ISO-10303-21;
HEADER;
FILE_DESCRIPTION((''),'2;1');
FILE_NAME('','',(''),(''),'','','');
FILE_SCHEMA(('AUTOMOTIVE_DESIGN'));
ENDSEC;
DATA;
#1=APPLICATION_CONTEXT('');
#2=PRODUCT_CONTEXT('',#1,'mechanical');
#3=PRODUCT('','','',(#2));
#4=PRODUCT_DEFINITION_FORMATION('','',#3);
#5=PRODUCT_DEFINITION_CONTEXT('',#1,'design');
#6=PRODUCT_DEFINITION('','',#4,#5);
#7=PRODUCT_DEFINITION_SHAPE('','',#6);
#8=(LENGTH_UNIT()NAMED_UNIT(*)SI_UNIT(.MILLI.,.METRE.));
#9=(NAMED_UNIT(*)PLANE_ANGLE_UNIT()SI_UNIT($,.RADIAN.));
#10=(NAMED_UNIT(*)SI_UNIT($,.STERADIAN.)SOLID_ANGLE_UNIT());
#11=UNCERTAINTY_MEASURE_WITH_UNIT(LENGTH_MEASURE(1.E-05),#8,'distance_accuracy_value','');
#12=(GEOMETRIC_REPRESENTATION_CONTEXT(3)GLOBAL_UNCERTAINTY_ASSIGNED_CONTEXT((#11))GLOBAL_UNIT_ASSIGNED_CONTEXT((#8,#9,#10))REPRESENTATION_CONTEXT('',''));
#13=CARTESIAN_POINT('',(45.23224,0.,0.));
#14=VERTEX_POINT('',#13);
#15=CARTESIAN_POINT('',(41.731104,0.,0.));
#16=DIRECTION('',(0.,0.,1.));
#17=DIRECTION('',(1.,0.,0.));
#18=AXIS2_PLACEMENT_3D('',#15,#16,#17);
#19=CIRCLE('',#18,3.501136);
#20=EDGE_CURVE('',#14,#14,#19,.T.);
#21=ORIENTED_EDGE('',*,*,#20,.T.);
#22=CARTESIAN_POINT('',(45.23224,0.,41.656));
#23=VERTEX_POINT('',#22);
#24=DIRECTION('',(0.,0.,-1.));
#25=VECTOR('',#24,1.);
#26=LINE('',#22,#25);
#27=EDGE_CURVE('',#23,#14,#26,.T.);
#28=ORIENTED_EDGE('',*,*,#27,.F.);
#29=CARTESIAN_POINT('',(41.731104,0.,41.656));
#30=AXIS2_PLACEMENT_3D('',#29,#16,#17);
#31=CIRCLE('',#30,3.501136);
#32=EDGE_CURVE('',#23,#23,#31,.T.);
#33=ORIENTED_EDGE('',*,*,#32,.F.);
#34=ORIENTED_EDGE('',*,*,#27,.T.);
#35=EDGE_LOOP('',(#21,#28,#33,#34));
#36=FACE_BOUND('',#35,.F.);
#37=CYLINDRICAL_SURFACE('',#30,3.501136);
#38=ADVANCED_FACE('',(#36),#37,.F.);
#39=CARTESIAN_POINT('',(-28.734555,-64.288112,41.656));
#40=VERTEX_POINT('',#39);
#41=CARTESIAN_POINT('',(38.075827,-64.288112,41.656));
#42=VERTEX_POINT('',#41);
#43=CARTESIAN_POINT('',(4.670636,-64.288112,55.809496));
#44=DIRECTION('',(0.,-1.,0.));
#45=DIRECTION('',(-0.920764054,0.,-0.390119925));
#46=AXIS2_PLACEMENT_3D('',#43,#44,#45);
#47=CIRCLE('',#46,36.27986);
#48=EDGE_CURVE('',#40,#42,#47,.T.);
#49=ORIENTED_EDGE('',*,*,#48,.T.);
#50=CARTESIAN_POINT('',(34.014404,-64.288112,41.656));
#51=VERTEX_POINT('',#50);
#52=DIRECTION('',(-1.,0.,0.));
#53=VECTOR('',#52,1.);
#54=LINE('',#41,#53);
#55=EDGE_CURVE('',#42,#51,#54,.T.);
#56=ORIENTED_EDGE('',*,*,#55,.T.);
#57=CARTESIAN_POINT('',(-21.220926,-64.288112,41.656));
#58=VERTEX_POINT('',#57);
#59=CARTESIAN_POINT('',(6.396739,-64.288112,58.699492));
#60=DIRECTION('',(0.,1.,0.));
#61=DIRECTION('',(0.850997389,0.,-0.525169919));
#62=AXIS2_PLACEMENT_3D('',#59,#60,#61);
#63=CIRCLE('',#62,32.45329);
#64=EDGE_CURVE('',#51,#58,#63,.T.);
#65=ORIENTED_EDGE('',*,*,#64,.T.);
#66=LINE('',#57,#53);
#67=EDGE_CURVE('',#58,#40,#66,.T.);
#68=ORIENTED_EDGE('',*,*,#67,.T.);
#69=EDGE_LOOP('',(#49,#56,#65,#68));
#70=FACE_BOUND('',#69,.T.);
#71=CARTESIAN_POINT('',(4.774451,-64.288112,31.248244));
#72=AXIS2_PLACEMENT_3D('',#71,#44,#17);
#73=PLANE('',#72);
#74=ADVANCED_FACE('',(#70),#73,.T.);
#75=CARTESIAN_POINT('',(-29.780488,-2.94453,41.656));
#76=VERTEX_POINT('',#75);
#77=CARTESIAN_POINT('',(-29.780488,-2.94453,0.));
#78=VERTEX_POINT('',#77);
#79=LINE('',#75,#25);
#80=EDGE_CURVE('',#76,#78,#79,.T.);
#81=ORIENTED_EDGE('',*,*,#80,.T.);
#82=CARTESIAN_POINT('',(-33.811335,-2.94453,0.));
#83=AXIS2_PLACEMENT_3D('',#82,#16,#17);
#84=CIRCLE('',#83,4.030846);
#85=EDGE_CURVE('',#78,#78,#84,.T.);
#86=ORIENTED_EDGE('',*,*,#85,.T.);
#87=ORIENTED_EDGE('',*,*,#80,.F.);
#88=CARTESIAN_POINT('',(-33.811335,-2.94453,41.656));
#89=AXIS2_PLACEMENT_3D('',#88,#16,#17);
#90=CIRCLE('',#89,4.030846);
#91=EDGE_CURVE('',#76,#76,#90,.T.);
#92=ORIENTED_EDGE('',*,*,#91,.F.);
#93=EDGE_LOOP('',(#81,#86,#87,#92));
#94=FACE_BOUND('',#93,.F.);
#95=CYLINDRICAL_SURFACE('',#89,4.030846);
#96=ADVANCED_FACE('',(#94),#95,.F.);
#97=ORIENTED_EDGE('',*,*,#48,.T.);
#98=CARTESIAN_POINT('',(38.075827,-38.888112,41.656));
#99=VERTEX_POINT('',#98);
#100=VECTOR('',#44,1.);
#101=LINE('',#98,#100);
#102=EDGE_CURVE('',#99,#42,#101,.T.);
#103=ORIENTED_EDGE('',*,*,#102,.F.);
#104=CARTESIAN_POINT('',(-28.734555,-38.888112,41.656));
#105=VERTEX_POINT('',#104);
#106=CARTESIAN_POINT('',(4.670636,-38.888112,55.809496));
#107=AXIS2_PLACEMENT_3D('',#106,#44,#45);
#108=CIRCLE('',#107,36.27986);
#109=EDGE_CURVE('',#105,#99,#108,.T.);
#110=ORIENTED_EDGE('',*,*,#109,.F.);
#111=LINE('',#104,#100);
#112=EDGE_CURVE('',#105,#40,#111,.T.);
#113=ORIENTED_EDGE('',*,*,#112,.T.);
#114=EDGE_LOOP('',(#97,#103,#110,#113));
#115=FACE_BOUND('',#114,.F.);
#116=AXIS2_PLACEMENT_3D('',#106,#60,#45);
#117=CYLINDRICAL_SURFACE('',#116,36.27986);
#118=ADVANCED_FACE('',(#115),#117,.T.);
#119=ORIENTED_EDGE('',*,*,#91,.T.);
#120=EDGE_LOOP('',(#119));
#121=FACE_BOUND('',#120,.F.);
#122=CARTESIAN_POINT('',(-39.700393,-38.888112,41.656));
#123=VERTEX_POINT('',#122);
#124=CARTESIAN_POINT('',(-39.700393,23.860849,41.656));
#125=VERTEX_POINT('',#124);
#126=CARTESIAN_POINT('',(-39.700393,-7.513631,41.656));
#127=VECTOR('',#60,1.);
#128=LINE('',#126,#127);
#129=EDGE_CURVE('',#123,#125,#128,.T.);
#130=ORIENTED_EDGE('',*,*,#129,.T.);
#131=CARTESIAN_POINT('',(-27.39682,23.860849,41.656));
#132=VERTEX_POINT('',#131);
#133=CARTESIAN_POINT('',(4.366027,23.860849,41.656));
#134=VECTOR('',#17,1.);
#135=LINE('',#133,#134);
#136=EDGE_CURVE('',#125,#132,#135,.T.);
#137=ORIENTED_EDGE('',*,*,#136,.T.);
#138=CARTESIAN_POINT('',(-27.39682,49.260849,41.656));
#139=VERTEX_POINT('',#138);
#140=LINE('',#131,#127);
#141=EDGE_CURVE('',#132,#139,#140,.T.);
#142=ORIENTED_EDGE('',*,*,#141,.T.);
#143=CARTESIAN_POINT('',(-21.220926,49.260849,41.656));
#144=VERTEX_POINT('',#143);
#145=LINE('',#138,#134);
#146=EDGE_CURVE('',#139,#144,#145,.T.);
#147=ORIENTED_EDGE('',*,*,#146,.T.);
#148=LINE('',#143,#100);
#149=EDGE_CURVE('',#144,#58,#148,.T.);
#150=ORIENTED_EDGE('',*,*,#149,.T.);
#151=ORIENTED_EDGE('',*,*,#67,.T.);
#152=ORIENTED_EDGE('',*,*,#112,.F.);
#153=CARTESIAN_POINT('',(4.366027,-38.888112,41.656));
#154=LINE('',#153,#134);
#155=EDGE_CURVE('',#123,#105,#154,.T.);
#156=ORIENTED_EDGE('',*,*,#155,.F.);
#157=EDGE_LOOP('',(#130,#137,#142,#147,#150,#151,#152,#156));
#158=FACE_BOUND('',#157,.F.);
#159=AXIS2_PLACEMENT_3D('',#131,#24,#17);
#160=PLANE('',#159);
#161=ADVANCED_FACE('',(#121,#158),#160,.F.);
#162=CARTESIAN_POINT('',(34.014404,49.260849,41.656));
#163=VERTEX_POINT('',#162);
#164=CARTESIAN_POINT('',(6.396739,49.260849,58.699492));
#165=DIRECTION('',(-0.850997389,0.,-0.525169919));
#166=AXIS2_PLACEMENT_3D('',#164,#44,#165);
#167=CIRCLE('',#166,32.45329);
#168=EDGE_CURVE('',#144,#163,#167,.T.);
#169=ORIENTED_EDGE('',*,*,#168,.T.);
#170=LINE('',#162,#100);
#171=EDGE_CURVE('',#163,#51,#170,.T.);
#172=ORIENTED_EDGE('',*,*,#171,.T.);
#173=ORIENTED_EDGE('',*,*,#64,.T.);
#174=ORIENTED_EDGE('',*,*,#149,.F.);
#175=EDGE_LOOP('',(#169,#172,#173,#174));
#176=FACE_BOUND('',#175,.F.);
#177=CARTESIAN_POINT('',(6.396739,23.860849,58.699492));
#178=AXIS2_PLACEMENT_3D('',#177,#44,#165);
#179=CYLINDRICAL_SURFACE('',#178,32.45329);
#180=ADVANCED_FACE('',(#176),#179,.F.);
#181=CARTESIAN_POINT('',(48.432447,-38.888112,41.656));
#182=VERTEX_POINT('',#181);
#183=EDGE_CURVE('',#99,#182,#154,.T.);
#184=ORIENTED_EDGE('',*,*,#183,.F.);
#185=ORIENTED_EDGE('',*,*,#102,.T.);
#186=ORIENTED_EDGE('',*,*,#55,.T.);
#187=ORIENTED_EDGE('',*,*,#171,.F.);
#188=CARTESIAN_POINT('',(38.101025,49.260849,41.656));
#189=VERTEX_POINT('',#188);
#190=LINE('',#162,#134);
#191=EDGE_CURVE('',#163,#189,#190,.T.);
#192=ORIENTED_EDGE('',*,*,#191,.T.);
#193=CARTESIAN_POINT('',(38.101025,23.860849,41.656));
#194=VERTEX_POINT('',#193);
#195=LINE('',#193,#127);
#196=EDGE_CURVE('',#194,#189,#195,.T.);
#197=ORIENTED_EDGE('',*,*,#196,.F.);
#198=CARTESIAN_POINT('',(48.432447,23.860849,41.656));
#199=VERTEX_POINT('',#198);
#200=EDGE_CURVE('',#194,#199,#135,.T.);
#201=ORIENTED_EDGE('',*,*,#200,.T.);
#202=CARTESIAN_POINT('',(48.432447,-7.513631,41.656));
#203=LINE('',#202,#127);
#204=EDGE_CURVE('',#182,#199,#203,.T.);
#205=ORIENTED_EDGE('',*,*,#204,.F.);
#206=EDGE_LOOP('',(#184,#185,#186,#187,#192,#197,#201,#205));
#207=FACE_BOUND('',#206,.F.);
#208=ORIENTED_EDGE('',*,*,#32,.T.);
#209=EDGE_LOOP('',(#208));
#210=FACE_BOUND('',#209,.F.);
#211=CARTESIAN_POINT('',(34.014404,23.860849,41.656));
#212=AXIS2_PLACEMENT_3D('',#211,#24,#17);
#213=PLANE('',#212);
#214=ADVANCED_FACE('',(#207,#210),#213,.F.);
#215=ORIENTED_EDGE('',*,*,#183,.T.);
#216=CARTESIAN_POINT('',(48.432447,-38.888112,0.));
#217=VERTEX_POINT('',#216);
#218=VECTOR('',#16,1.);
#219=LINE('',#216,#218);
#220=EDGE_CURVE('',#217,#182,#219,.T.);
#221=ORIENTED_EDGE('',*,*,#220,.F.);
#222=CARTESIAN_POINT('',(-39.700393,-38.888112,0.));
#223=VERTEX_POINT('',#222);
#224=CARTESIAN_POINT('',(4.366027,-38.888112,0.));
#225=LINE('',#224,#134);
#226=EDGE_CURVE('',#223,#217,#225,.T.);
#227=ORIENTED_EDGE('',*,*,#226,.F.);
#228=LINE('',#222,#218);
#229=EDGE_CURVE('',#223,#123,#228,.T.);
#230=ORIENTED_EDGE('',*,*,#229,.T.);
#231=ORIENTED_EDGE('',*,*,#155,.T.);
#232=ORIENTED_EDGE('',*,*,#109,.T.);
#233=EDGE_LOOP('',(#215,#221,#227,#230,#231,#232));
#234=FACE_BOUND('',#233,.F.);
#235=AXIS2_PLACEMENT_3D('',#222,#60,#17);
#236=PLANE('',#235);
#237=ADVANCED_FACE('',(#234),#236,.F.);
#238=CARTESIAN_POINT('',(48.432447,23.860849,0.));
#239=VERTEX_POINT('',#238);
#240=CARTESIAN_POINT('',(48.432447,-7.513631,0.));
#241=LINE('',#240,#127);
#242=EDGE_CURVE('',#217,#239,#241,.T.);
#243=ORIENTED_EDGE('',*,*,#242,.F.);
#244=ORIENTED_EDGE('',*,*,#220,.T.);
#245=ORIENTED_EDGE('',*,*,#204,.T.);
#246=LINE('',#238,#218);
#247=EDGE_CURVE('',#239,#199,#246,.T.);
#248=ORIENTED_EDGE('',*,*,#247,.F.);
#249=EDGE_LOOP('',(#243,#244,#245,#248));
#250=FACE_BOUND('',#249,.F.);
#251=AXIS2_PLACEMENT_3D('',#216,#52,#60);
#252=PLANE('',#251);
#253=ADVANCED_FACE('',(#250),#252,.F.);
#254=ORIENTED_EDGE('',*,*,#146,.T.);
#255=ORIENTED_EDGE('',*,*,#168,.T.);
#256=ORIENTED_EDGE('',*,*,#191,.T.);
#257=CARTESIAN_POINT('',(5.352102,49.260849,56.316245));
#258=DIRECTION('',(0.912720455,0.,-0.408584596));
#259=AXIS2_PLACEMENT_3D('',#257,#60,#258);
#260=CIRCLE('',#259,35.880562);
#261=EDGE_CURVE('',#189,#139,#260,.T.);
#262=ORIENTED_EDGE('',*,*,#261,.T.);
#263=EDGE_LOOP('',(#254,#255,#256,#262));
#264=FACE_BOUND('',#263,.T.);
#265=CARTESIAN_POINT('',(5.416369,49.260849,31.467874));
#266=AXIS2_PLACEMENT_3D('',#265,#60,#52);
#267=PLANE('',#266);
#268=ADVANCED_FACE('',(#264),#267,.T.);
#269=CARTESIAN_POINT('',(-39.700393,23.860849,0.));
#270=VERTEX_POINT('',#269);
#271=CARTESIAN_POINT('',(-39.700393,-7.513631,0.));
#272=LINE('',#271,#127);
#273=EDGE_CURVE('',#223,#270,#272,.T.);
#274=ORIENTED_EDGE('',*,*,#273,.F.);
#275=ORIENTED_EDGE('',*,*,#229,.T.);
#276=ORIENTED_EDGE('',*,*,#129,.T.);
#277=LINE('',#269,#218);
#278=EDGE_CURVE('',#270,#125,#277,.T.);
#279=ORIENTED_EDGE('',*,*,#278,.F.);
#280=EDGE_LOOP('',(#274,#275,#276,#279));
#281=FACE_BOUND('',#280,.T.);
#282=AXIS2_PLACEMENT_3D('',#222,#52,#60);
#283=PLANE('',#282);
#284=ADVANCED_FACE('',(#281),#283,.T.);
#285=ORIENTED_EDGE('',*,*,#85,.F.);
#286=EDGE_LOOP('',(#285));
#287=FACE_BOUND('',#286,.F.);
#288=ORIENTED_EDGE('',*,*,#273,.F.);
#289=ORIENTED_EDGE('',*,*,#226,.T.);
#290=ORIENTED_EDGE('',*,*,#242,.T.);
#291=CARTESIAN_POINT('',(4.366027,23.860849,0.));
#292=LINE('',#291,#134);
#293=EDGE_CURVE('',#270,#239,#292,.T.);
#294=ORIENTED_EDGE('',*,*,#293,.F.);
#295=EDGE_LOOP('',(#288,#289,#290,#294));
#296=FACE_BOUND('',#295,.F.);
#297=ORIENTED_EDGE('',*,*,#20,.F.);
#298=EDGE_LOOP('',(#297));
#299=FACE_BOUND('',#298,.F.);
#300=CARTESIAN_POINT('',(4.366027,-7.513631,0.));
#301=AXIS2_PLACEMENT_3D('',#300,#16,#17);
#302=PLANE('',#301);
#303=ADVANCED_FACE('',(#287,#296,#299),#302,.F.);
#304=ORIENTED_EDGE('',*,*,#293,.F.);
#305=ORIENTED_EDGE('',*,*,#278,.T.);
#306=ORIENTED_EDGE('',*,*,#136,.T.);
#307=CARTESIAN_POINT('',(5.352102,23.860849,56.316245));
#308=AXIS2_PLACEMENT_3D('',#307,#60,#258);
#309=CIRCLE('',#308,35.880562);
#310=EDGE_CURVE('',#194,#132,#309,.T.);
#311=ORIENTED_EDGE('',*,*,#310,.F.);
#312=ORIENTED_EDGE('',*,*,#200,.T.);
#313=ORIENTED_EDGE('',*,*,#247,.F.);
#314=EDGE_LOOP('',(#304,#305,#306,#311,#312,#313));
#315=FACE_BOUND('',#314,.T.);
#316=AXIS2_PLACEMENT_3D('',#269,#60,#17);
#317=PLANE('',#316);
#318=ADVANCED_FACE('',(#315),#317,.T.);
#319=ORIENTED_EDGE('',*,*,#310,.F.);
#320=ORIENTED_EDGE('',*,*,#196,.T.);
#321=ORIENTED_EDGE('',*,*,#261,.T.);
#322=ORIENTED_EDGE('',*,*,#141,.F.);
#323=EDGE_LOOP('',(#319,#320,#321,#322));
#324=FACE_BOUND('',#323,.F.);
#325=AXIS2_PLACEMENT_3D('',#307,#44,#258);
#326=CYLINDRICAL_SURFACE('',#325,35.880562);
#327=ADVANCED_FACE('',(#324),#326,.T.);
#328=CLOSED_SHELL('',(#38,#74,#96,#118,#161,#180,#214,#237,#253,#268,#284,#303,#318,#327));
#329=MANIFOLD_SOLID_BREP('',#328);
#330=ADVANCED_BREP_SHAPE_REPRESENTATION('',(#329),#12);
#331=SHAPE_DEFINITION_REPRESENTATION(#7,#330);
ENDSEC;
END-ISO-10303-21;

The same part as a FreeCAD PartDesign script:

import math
import FreeCAD as App
import Part
import Sketcher
Q = App.Units.Quantity

doc = App.newDocument("Part")
body = doc.addObject("PartDesign::Body", "Body")

# Sketch on XY plane
sketch1 = body.newObject("Sketcher::SketchObject", "Sketch")
sketch1.AttachmentSupport = (doc.getObject("XY_Plane"), [""])
sketch1.MapMode = "FlatFace"
sketch1.addGeometry(Part.LineSegment(App.Vector(-39.700393, 23.860849, 0), App.Vector(-39.700393, -38.888112, 0)), False)
sketch1.addGeometry(Part.LineSegment(App.Vector(-39.700393, -38.888112, 0), App.Vector(48.432447, -38.888112, 0)), False)
sketch1.addGeometry(Part.LineSegment(App.Vector(48.432447, -38.888112, 0), App.Vector(48.432447, 23.860849, 0)), False)
sketch1.addGeometry(Part.LineSegment(App.Vector(48.432447, 23.860849, 0), App.Vector(-39.700393, 23.860849, 0)), False)
sketch1.addConstraint(Sketcher.Constraint("Coincident", 0, 2, 1, 1))
sketch1.addConstraint(Sketcher.Constraint("Coincident", 1, 2, 2, 1))
sketch1.addConstraint(Sketcher.Constraint("Coincident", 2, 2, 3, 1))
sketch1.addConstraint(Sketcher.Constraint("Coincident", 3, 2, 0, 1))
sketch1.addConstraint(Sketcher.Constraint("Vertical", 0))
sketch1.addConstraint(Sketcher.Constraint("Horizontal", 1))
sketch1.addConstraint(Sketcher.Constraint("Vertical", 2))
sketch1.addConstraint(Sketcher.Constraint("Horizontal", 3))
sketch1.addConstraint(Sketcher.Constraint("DistanceX", 1, 1, 1, 2, 88.13284))
sketch1.addConstraint(Sketcher.Constraint("DistanceY", 0, 2, 0, 1, 62.748961))
sketch1.addConstraint(Sketcher.Constraint("DistanceY", 0, 2, -1, 1, 38.888112))
sketch1.addConstraint(Sketcher.Constraint("DistanceX", 0, 2, -1, 1, 39.700393))
pad1 = body.newObject("PartDesign::Pad", "Pad")
pad1.Profile = sketch1
pad1.Length = Q("1.64 in")

# Sketch on XZ plane
sketch2 = body.newObject("Sketcher::SketchObject", "Sketch001")
sketch2.AttachmentSupport = (doc.getObject("XZ_Plane"), [""])
sketch2.MapMode = "FlatFace"
sketch2.AttachmentOffset = App.Placement(App.Vector(0, 0, 38.888112), App.Rotation())
sketch2.addGeometry(Part.LineSegment(App.Vector(34.014404, 41.656, 0), App.Vector(-21.220926, 41.656, 0)), False)
sketch2.addGeometry(Part.ArcOfCircle(Part.Circle(App.Vector(6.396739, 58.699492, 0), App.Vector(0, 0, 1), 32.45329), math.radians(-148.320317), math.radians(-31.679683)), False)
sketch2.addConstraint(Sketcher.Constraint("Coincident", 0, 1, 1, 2))
sketch2.addConstraint(Sketcher.Constraint("Coincident", 1, 1, 0, 2))
sketch2.addConstraint(Sketcher.Constraint("Horizontal", 0))
sketch2.addConstraint(Sketcher.Constraint("DistanceY", -1, 1, 0, 1, Q("1.64 in")))
sketch2.addConstraint(Sketcher.Constraint("Radius", 1, 32.45329))
sketch2.addConstraint(Sketcher.Constraint("DistanceX", 0, 2, 0, 1, 55.23533))
sketch2.addConstraint(Sketcher.Constraint("DistanceX", -1, 1, 1, 3, 6.396739))
pocket1 = body.newObject("PartDesign::Pocket", "Pocket")
pocket1.Profile = sketch2
pocket1.Length = Q("99 in")

# Sketch on XZ plane
sketch3 = body.newObject("Sketcher::SketchObject", "Sketch002")
sketch3.AttachmentSupport = (doc.getObject("XZ_Plane"), [""])
sketch3.MapMode = "FlatFace"
sketch3.AttachmentOffset = App.Placement(App.Vector(0, 0, 38.888112), App.Rotation())
sketch3.addGeometry(Part.ArcOfCircle(Part.Circle(App.Vector(6.396739, 58.699492, 0), App.Vector(0, 0, 1), 32.45329), math.radians(-148.320317), math.radians(-31.679683)), False)
sketch3.addGeometry(Part.LineSegment(App.Vector(-21.220926, 41.656, 0), App.Vector(-28.734555, 41.656, 0)), False)
sketch3.addGeometry(Part.ArcOfCircle(Part.Circle(App.Vector(4.670636, 55.809496, 0), App.Vector(0, 0, 1), 36.27986), math.radians(-157.038038), math.radians(-22.961962)), False)
sketch3.addGeometry(Part.LineSegment(App.Vector(38.075827, 41.656, 0), App.Vector(34.014404, 41.656, 0)), False)
sketch3.addConstraint(Sketcher.Constraint("Coincident", 0, 1, 1, 1))
sketch3.addConstraint(Sketcher.Constraint("Coincident", 1, 2, 2, 1))
sketch3.addConstraint(Sketcher.Constraint("Coincident", 2, 2, 3, 1))
sketch3.addConstraint(Sketcher.Constraint("Coincident", 3, 2, 0, 2))
sketch3.addConstraint(Sketcher.Constraint("Horizontal", 1))
sketch3.addConstraint(Sketcher.Constraint("Horizontal", 3))
sketch3.addConstraint(Sketcher.Constraint("Horizontal", 1, 2, 2, 2))
sketch3.addConstraint(Sketcher.Constraint("DistanceY", -1, 1, 0, 1, Q("1.64 in")))
sketch3.addConstraint(Sketcher.Constraint("Radius", 0, 32.45329))
sketch3.addConstraint(Sketcher.Constraint("Radius", 2, 36.27986))
sketch3.addConstraint(Sketcher.Constraint("DistanceX", 1, 2, 1, 1, 7.513629))
sketch3.addConstraint(Sketcher.Constraint("DistanceX", 3, 2, 3, 1, 4.061423))
sketch3.addConstraint(Sketcher.Constraint("DistanceX", -1, 1, 0, 3, 6.396739))
sketch3.addConstraint(Sketcher.Constraint("DistanceY", -1, 1, 0, 3, 58.699492))
pad2 = body.newObject("PartDesign::Pad", "Pad001")
pad2.Profile = sketch3
pad2.Length = Q("1 in")

# Sketch on XZ plane
sketch4 = body.newObject("Sketcher::SketchObject", "Sketch003")
sketch4.AttachmentSupport = (doc.getObject("XZ_Plane"), [""])
sketch4.MapMode = "FlatFace"
sketch4.AttachmentOffset = App.Placement(App.Vector(0, 0, -23.860849), App.Rotation())
sketch4.addGeometry(Part.LineSegment(App.Vector(34.014404, 41.656, 0), App.Vector(38.101025, 41.656, 0)), False)
sketch4.addGeometry(Part.ArcOfCircle(Part.Circle(App.Vector(5.352102, 56.316245, 0), App.Vector(0, 0, 1), 35.880562), math.radians(-155.884048), math.radians(-24.115952)), False)
sketch4.addGeometry(Part.LineSegment(App.Vector(-27.39682, 41.656, 0), App.Vector(-21.220926, 41.656, 0)), False)
sketch4.addGeometry(Part.ArcOfCircle(Part.Circle(App.Vector(6.396739, 58.699492, 0), App.Vector(0, 0, 1), 32.45329), math.radians(-148.320317), math.radians(-31.679683)), False)
sketch4.addConstraint(Sketcher.Constraint("Coincident", 0, 2, 1, 2))
sketch4.addConstraint(Sketcher.Constraint("Coincident", 1, 1, 2, 1))
sketch4.addConstraint(Sketcher.Constraint("Coincident", 2, 2, 3, 1))
sketch4.addConstraint(Sketcher.Constraint("Coincident", 3, 2, 0, 1))
sketch4.addConstraint(Sketcher.Constraint("Horizontal", 0))
sketch4.addConstraint(Sketcher.Constraint("Horizontal", 2))
sketch4.addConstraint(Sketcher.Constraint("Horizontal", 0, 2, 1, 1))
sketch4.addConstraint(Sketcher.Constraint("DistanceY", -1, 1, 0, 2, Q("1.64 in")))
sketch4.addConstraint(Sketcher.Constraint("Radius", 1, 35.880562))
sketch4.addConstraint(Sketcher.Constraint("Radius", 3, 32.45329))
sketch4.addConstraint(Sketcher.Constraint("DistanceX", 0, 1, 0, 2, 4.086621))
sketch4.addConstraint(Sketcher.Constraint("DistanceX", 1, 3, 3, 2, 28.662302))
sketch4.addConstraint(Sketcher.Constraint("DistanceX", 2, 1, 2, 2, 6.175894))
sketch4.addConstraint(Sketcher.Constraint("DistanceX", -1, 1, 3, 3, 6.396739))
pad3 = body.newObject("PartDesign::Pad", "Pad002")
pad3.Profile = sketch4
pad3.Length = Q("1 in")
pad3.Reversed = True

# Sketch on XY plane
sketch5 = body.newObject("Sketcher::SketchObject", "Sketch004")
sketch5.AttachmentSupport = (doc.getObject("XY_Plane"), [""])
sketch5.MapMode = "FlatFace"
sketch5.AttachmentOffset = App.Placement(App.Vector(0, 0, 1.64 * 25.4), App.Rotation())
sketch5.addGeometry(Part.Circle(App.Vector(-33.811335, -2.94453, 0), App.Vector(0, 0, 1), 4.030846), False)
sketch5.addGeometry(Part.Circle(App.Vector(41.731104, 0, 0), App.Vector(0, 0, 1), 3.501136), False)
sketch5.addConstraint(Sketcher.Constraint("PointOnObject", 1, 3, -1))
sketch5.addConstraint(Sketcher.Constraint("Diameter", 1, 7.002271))
sketch5.addConstraint(Sketcher.Constraint("Diameter", 0, 8.061693))
sketch5.addConstraint(Sketcher.Constraint("DistanceY", 0, 3, -1, 1, 2.94453))
sketch5.addConstraint(Sketcher.Constraint("DistanceX", 0, 3, 1, 3, 75.542439))
sketch5.addConstraint(Sketcher.Constraint("DistanceX", 0, 3, -1, 1, 33.811335))
pocket2 = body.newObject("PartDesign::Pocket", "Pocket001")
pocket2.Profile = sketch5
pocket2.Length = Q("99 in")

doc.recompute()
